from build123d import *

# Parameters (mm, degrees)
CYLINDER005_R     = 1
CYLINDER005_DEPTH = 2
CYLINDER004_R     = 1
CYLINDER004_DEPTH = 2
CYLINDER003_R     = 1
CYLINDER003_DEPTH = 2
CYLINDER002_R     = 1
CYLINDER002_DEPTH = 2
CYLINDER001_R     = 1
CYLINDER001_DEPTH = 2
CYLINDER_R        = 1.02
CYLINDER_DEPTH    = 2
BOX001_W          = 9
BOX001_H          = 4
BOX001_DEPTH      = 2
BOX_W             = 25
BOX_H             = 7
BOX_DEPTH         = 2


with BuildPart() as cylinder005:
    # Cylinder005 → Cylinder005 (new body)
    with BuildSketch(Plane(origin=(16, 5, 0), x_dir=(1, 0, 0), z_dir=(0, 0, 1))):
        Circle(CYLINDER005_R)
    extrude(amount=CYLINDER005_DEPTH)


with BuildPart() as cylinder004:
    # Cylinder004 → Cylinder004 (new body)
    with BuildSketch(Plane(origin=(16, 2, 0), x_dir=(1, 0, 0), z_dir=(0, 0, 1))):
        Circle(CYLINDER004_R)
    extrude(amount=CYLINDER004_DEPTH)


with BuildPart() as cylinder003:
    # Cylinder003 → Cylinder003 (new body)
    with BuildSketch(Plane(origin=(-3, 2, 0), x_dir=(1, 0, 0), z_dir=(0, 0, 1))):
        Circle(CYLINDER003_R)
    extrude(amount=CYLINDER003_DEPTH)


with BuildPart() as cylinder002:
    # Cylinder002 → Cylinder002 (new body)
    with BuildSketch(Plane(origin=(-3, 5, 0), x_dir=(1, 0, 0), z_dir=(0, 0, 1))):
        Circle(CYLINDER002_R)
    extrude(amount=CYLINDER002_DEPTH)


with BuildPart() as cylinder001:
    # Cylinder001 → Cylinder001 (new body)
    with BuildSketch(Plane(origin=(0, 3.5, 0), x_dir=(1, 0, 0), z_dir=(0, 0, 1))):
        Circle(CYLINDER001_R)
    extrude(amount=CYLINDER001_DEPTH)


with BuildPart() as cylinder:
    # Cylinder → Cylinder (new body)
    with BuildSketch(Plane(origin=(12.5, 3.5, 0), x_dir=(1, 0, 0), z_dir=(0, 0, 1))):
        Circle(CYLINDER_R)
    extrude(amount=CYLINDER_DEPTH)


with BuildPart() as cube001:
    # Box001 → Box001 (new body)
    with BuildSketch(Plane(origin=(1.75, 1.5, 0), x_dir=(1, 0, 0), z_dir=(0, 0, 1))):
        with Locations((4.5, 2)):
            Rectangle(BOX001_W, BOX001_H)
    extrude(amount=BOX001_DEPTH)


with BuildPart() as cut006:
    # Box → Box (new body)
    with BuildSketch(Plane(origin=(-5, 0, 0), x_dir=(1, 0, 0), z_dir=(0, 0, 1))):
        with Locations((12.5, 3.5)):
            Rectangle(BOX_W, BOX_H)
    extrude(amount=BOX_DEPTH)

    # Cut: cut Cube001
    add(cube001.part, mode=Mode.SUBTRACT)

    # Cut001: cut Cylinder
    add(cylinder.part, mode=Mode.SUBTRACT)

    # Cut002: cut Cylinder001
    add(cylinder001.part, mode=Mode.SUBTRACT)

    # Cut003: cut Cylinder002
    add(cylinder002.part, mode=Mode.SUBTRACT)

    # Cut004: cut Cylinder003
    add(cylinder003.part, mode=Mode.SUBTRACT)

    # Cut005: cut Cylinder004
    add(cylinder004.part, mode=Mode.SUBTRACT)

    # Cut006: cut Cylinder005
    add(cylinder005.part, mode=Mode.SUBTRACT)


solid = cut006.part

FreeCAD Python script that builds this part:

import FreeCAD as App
import Part
import Sketcher
from FreeCAD import Vector

doc = App.newDocument("Part")
body = doc.addObject("PartDesign::Body", "Body")

sketch1 = body.newObject("Sketcher::SketchObject", "Sketch")
sketch1.AttachmentSupport = (doc.getObject("XY_Plane"), [""])
sketch1.MapMode = "FlatFace"
sketch1.addGeometry(Part.Circle(Vector(16, 5, 0), Vector(0, 0, 1), 1), False)
sketch1.addConstraint([
    Sketcher.Constraint("Diameter", 0, 2.0),
    Sketcher.Constraint("DistanceX", -1, 1, 0, 3, 16.0),
    Sketcher.Constraint("DistanceY", -1, 1, 0, 3, 5.0),
])
pad1 = body.newObject("PartDesign::Pad", "Pad")
pad1.Profile = sketch1
pad1.Length = 2
body2 = doc.addObject("PartDesign::Body", "Body001")

sketch2 = body2.newObject("Sketcher::SketchObject", "Sketch001")
sketch2.AttachmentSupport = (doc.getObject("XY_Plane001"), [""])
sketch2.MapMode = "FlatFace"
sketch2.addGeometry(Part.Circle(Vector(16, 2, 0), Vector(0, 0, 1), 1), False)
sketch2.addConstraint([
    Sketcher.Constraint("Diameter", 0, 2.0),
    Sketcher.Constraint("DistanceX", -1, 1, 0, 3, 16.0),
    Sketcher.Constraint("DistanceY", -1, 1, 0, 3, 2.0),
])
pad2 = body2.newObject("PartDesign::Pad", "Pad001")
pad2.Profile = sketch2
pad2.Length = 2
body3 = doc.addObject("PartDesign::Body", "Body002")

sketch3 = body3.newObject("Sketcher::SketchObject", "Sketch002")
sketch3.AttachmentSupport = (doc.getObject("XY_Plane002"), [""])
sketch3.MapMode = "FlatFace"
sketch3.addGeometry(Part.Circle(Vector(-3, 2, 0), Vector(0, 0, 1), 1), False)
sketch3.addConstraint([
    Sketcher.Constraint("Diameter", 0, 2.0),
    Sketcher.Constraint("DistanceX", 0, 3, -1, 1, 3.0),
    Sketcher.Constraint("DistanceY", -1, 1, 0, 3, 2.0),
])
pad3 = body3.newObject("PartDesign::Pad", "Pad002")
pad3.Profile = sketch3
pad3.Length = 2
body4 = doc.addObject("PartDesign::Body", "Body003")

sketch4 = body4.newObject("Sketcher::SketchObject", "Sketch003")
sketch4.AttachmentSupport = (doc.getObject("XY_Plane003"), [""])
sketch4.MapMode = "FlatFace"
sketch4.addGeometry(Part.Circle(Vector(-3, 5, 0), Vector(0, 0, 1), 1), False)
sketch4.addConstraint([
    Sketcher.Constraint("Diameter", 0, 2.0),
    Sketcher.Constraint("DistanceX", 0, 3, -1, 1, 3.0),
    Sketcher.Constraint("DistanceY", -1, 1, 0, 3, 5.0),
])
pad4 = body4.newObject("PartDesign::Pad", "Pad003")
pad4.Profile = sketch4
pad4.Length = 2
body5 = doc.addObject("PartDesign::Body", "Body004")

sketch5 = body5.newObject("Sketcher::SketchObject", "Sketch004")
sketch5.AttachmentSupport = (doc.getObject("XY_Plane004"), [""])
sketch5.MapMode = "FlatFace"
sketch5.addGeometry(Part.Circle(Vector(0, 3.5, 0), Vector(0, 0, 1), 1), False)
sketch5.addConstraint([
    Sketcher.Constraint("PointOnObject", 0, 3, -2),
    Sketcher.Constraint("Diameter", 0, 2.0),
    Sketcher.Constraint("DistanceY", -1, 1, 0, 3, 3.5),
])
pad5 = body5.newObject("PartDesign::Pad", "Pad004")
pad5.Profile = sketch5
pad5.Length = 2
body6 = doc.addObject("PartDesign::Body", "Body005")

sketch6 = body6.newObject("Sketcher::SketchObject", "Sketch005")
sketch6.AttachmentSupport = (doc.getObject("XY_Plane005"), [""])
sketch6.MapMode = "FlatFace"
sketch6.addGeometry(Part.Circle(Vector(12.5, 3.5, 0), Vector(0, 0, 1), 1.02), False)
sketch6.addConstraint([
    Sketcher.Constraint("Diameter", 0, 2.04),
    Sketcher.Constraint("DistanceX", -1, 1, 0, 3, 12.5),
    Sketcher.Constraint("DistanceY", -1, 1, 0, 3, 3.5),
])
pad6 = body6.newObject("PartDesign::Pad", "Pad005")
pad6.Profile = sketch6
pad6.Length = 2
body7 = doc.addObject("PartDesign::Body", "Body006")

sketch7 = body7.newObject("Sketcher::SketchObject", "Sketch006")
sketch7.AttachmentSupport = (doc.getObject("XY_Plane006"), [""])
sketch7.MapMode = "FlatFace"
sketch7.addGeometry([
    Part.LineSegment(Vector(1.75, 5.5, 0), Vector(1.75, 1.5, 0)),
    Part.LineSegment(Vector(1.75, 1.5, 0), Vector(10.75, 1.5, 0)),
    Part.LineSegment(Vector(10.75, 1.5, 0), Vector(10.75, 5.5, 0)),
    Part.LineSegment(Vector(10.75, 5.5, 0), Vector(1.75, 5.5, 0)),
], False)
sketch7.addConstraint([
    Sketcher.Constraint("Coincident", 0, 2, 1, 1),
    Sketcher.Constraint("Coincident", 1, 2, 2, 1),
    Sketcher.Constraint("Coincident", 2, 2, 3, 1),
    Sketcher.Constraint("Coincident", 3, 2, 0, 1),
    Sketcher.Constraint("Vertical", 0),
    Sketcher.Constraint("Horizontal", 1),
    Sketcher.Constraint("Vertical", 2),
    Sketcher.Constraint("Horizontal", 3),
    Sketcher.Constraint("DistanceX", 1, 1, 1, 2, 9.0),
    Sketcher.Constraint("DistanceY", 0, 2, 0, 1, 4.0),
    Sketcher.Constraint("DistanceY", -1, 1, 0, 2, 1.5),
    Sketcher.Constraint("DistanceX", -1, 1, 0, 2, 1.75),
])
pad7 = body7.newObject("PartDesign::Pad", "Pad006")
pad7.Profile = sketch7
pad7.Length = 2
body8 = doc.addObject("PartDesign::Body", "Body007")

sketch8 = body8.newObject("Sketcher::SketchObject", "Sketch007")
sketch8.AttachmentSupport = (doc.getObject("XY_Plane007"), [""])
sketch8.MapMode = "FlatFace"
sketch8.addGeometry([
    Part.LineSegment(Vector(-5, 7, 0), Vector(-5, 0, 0)),
    Part.LineSegment(Vector(-5, 0, 0), Vector(20, 0, 0)),
    Part.LineSegment(Vector(20, 0, 0), Vector(20, 7, 0)),
    Part.LineSegment(Vector(20, 7, 0), Vector(-5, 7, 0)),
], False)
sketch8.addConstraint([
    Sketcher.Constraint("Coincident", 0, 2, 1, 1),
    Sketcher.Constraint("Coincident", 1, 2, 2, 1),
    Sketcher.Constraint("Coincident", 2, 2, 3, 1),
    Sketcher.Constraint("Coincident", 3, 2, 0, 1),
    Sketcher.Constraint("Vertical", 0),
    Sketcher.Constraint("Horizontal", 1),
    Sketcher.Constraint("Vertical", 2),
    Sketcher.Constraint("Horizontal", 3),
    Sketcher.Constraint("PointOnObject", 0, 2, -1),
    Sketcher.Constraint("DistanceX", 1, 1, 1, 2, 25.0),
    Sketcher.Constraint("DistanceY", 0, 2, 0, 1, 7.0),
    Sketcher.Constraint("DistanceX", 0, 2, -1, 1, 5.0),
])
pad8 = body8.newObject("PartDesign::Pad", "Pad007")
pad8.Profile = sketch8
pad8.Length = 2
doc.recompute()

boolean = body8.newObject("PartDesign::Boolean", "Boolean")
boolean.Type = "Cut"
boolean.addObjects([body7])
doc.recompute()

boolean2 = body8.newObject("PartDesign::Boolean", "Boolean001")
boolean2.Type = "Cut"
boolean2.addObjects([body6])
doc.recompute()

boolean3 = body8.newObject("PartDesign::Boolean", "Boolean002")
boolean3.Type = "Cut"
boolean3.addObjects([body5])
doc.recompute()

boolean4 = body8.newObject("PartDesign::Boolean", "Boolean003")
boolean4.Type = "Cut"
boolean4.addObjects([body4])
doc.recompute()

boolean5 = body8.newObject("PartDesign::Boolean", "Boolean004")
boolean5.Type = "Cut"
boolean5.addObjects([body3])
doc.recompute()

boolean6 = body8.newObject("PartDesign::Boolean", "Boolean005")
boolean6.Type = "Cut"
boolean6.addObjects([body2])
doc.recompute()

boolean7 = body8.newObject("PartDesign::Boolean", "Boolean006")
boolean7.Type = "Cut"
boolean7.addObjects([body])

doc.recompute()
